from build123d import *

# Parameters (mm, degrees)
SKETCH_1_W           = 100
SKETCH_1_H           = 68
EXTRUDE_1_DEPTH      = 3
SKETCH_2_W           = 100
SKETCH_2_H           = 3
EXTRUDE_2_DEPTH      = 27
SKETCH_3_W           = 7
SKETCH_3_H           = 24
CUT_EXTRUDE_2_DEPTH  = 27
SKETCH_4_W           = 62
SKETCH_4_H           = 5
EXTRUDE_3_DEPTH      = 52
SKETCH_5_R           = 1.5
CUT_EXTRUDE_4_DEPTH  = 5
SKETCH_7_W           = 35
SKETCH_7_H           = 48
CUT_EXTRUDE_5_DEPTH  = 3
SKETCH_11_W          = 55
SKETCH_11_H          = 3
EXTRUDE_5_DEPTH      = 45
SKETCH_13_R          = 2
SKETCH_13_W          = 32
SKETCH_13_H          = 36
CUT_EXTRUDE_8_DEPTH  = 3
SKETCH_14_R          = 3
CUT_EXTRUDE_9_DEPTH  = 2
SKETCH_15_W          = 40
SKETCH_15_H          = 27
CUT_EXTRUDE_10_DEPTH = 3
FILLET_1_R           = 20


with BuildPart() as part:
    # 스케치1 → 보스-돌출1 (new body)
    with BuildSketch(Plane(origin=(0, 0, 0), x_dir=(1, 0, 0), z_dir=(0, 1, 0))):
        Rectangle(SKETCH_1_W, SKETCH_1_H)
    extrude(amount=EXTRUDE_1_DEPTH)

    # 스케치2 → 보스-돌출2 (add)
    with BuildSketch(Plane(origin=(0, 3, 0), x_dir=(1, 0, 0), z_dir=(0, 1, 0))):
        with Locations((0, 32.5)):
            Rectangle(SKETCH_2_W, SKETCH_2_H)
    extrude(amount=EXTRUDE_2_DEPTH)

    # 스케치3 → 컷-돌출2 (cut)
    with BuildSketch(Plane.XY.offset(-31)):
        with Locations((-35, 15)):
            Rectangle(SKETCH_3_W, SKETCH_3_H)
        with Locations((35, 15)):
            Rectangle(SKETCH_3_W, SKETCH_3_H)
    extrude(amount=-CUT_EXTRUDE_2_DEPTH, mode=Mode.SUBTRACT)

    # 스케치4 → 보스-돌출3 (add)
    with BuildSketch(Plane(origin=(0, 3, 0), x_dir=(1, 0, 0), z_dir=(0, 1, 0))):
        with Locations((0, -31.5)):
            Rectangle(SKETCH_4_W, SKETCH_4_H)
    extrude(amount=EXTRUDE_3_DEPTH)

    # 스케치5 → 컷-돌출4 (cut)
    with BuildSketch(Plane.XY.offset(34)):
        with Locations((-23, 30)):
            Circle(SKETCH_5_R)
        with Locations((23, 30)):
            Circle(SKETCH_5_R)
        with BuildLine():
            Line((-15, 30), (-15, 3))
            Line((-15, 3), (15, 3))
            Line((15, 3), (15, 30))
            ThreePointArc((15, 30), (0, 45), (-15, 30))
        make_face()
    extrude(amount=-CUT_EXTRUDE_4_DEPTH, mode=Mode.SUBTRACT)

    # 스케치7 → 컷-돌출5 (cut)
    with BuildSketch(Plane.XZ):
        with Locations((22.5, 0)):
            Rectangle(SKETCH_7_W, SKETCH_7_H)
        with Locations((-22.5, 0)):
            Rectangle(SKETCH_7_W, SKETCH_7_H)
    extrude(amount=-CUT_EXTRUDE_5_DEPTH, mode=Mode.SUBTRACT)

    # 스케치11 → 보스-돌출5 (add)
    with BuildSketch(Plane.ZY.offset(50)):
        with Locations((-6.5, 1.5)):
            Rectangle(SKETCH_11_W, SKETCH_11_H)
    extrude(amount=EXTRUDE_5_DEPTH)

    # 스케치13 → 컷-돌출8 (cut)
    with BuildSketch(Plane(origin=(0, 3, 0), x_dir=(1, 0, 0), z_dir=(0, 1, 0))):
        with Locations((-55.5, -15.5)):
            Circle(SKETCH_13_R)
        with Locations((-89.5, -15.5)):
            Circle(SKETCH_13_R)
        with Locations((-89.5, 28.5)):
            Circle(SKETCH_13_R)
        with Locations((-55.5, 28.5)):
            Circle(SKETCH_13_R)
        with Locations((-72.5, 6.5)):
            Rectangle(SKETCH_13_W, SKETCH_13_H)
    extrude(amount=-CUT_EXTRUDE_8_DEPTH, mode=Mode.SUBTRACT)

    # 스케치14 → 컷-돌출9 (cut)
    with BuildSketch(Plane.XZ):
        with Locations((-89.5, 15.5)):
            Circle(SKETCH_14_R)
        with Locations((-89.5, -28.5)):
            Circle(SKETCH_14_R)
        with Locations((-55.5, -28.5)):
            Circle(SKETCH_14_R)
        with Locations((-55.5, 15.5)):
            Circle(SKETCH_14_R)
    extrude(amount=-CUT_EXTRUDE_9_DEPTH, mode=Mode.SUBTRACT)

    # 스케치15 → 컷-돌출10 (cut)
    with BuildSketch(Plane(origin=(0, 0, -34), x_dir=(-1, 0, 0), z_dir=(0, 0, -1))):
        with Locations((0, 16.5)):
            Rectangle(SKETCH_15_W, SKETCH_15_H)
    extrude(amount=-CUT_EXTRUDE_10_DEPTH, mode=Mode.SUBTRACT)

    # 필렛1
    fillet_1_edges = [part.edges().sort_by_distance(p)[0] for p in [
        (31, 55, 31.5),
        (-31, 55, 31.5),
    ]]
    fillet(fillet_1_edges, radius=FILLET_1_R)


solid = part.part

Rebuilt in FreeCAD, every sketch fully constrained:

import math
import FreeCAD as App
import Part
import Sketcher


def edges_at(feature, points):
    """Names of the edges that pass closest to the given points."""
    edges = feature.Shape.Edges
    near = lambda p: min(range(len(edges)), key=lambda i: edges[i].distToShape(Part.Vertex(*p))[0])
    return sorted({f"Edge{near(p) + 1}" for p in points})


def add_polygon(sketch, points):
    """Adds a closed chain of lines whose ends are joined by coincident constraints."""
    first, n = sketch.GeometryCount, len(points)
    for a, b in zip(points, points[1:] + points[:1]):
        sketch.addGeometry(Part.LineSegment(App.Vector(*a, 0), App.Vector(*b, 0)), False)
    for i in range(n):
        sketch.addConstraint(Sketcher.Constraint("Coincident", first + i, 2, first + (i + 1) % n, 1))

doc = App.newDocument("Part")
body = doc.addObject("PartDesign::Body", "Body")

# Sketch on XZ plane
sketch1 = doc.addObject("Sketcher::SketchObject", "Sketch")
body.addObject(sketch1)
sketch1.AttachmentSupport = (doc.XZ_Plane, [""])
sketch1.MapMode = "FlatFace"
add_polygon(sketch1, [(-50, -34), (-50, 34), (50, 34), (50, -34)])  # lines 0-3
sketch1.addConstraint(Sketcher.Constraint("Vertical", 0))
sketch1.addConstraint(Sketcher.Constraint("Horizontal", 1))
sketch1.addConstraint(Sketcher.Constraint("Vertical", 2))
sketch1.addConstraint(Sketcher.Constraint("Horizontal", 3))
sketch1.addConstraint(Sketcher.Constraint("Symmetric", 0, 2, 2, 2, -1, 1))
sketch1.addConstraint(Sketcher.Constraint("DistanceX", 1, 1, 1, 2, 100.0))
sketch1.addConstraint(Sketcher.Constraint("DistanceY", 0, 1, 0, 2, 68.0))
pad1 = doc.addObject("PartDesign::Pad", "Pad")
body.addObject(pad1)
pad1.Profile = sketch1
pad1.Length = 3
pad1.Reversed = True

# Sketch on XZ plane
sketch2 = doc.addObject("Sketcher::SketchObject", "Sketch001")
body.addObject(sketch2)
sketch2.AttachmentSupport = (doc.XZ_Plane, [""])
sketch2.MapMode = "FlatFace"
sketch2.AttachmentOffset = App.Placement(App.Vector(0, 0, -3), App.Rotation())
add_polygon(sketch2, [(-50, -34), (-50, -31), (50, -31), (50, -34)])  # lines 0-3
sketch2.addConstraint(Sketcher.Constraint("Vertical", 0))
sketch2.addConstraint(Sketcher.Constraint("Horizontal", 1))
sketch2.addConstraint(Sketcher.Constraint("Vertical", 2))
sketch2.addConstraint(Sketcher.Constraint("Horizontal", 3))
sketch2.addConstraint(Sketcher.Constraint("DistanceX", 1, 1, 1, 2, 100.0))
sketch2.addConstraint(Sketcher.Constraint("DistanceY", 0, 1, 0, 2, 3.0))
sketch2.addConstraint(Sketcher.Constraint("DistanceX", 0, 2, -1, 1, 50.0))
sketch2.addConstraint(Sketcher.Constraint("DistanceY", 0, 2, -1, 1, 31.0))
pad2 = doc.addObject("PartDesign::Pad", "Pad001")
body.addObject(pad2)
pad2.Profile = sketch2
pad2.Length = 27
pad2.Reversed = True

# Sketch on XY plane
sketch3 = doc.addObject("Sketcher::SketchObject", "Sketch002")
body.addObject(sketch3)
sketch3.AttachmentSupport = (doc.XY_Plane, [""])
sketch3.MapMode = "FlatFace"
sketch3.AttachmentOffset = App.Placement(App.Vector(0, 0, -31), App.Rotation())
add_polygon(sketch3, [(-38, 27), (-38, 3), (-32, 3), (-32, 27)])  # lines 0-3
add_polygon(sketch3, [(32, 27), (32, 3), (38, 3), (38, 27)])  # lines 4-7
sketch3.addConstraint(Sketcher.Constraint("Vertical", 0))
sketch3.addConstraint(Sketcher.Constraint("Horizontal", 1))
sketch3.addConstraint(Sketcher.Constraint("Vertical", 2))
sketch3.addConstraint(Sketcher.Constraint("Horizontal", 3))
sketch3.addConstraint(Sketcher.Constraint("Vertical", 4))
sketch3.addConstraint(Sketcher.Constraint("Horizontal", 5))
sketch3.addConstraint(Sketcher.Constraint("Vertical", 6))
sketch3.addConstraint(Sketcher.Constraint("Horizontal", 7))
sketch3.addConstraint(Sketcher.Constraint("Symmetric", 1, 2, 4, 2, -2))
sketch3.addConstraint(Sketcher.Constraint("Symmetric", 3, 2, 6, 2, -2))
sketch3.addConstraint(Sketcher.Constraint("DistanceX", 1, 1, 1, 2, 7.0))
sketch3.addConstraint(Sketcher.Constraint("DistanceY", 0, 2, 0, 1, 24.0))
sketch3.addConstraint(Sketcher.Constraint("DistanceY", -1, 1, 0, 2, 3.0))
sketch3.addConstraint(Sketcher.Constraint("DistanceX", 1, 2, 4, 2, 63.0))
pocket1 = doc.addObject("PartDesign::Pocket", "Pocket")
body.addObject(pocket1)
pocket1.Profile = sketch3
pocket1.Length = 27

# Sketch on XZ plane
sketch4 = doc.addObject("Sketcher::SketchObject", "Sketch003")
body.addObject(sketch4)
sketch4.AttachmentSupport = (doc.XZ_Plane, [""])
sketch4.MapMode = "FlatFace"
sketch4.AttachmentOffset = App.Placement(App.Vector(0, 0, -3), App.Rotation())
add_polygon(sketch4, [(-31, 29), (-31, 34), (31, 34), (31, 29)])  # lines 0-3
sketch4.addConstraint(Sketcher.Constraint("Vertical", 0))
sketch4.addConstraint(Sketcher.Constraint("Horizontal", 1))
sketch4.addConstraint(Sketcher.Constraint("Vertical", 2))
sketch4.addConstraint(Sketcher.Constraint("Horizontal", 3))
sketch4.addConstraint(Sketcher.Constraint("DistanceX", 1, 1, 1, 2, 62.0))
sketch4.addConstraint(Sketcher.Constraint("DistanceY", 0, 1, 0, 2, 5.0))
sketch4.addConstraint(Sketcher.Constraint("DistanceX", 0, 2, -1, 1, 31.0))
sketch4.addConstraint(Sketcher.Constraint("DistanceY", -1, 1, 0, 2, 34.0))
pad3 = doc.addObject("PartDesign::Pad", "Pad002")
body.addObject(pad3)
pad3.Profile = sketch4
pad3.Length = 52
pad3.Reversed = True

# Sketch on XY plane
sketch5 = doc.addObject("Sketcher::SketchObject", "Sketch004")
body.addObject(sketch5)
sketch5.AttachmentSupport = (doc.XY_Plane, [""])
sketch5.MapMode = "FlatFace"
sketch5.AttachmentOffset = App.Placement(App.Vector(0, 0, 34), App.Rotation())
sketch5.addGeometry(Part.Circle(App.Vector(-23, 30, 0), App.Vector(0, 0, 1), 1.5), False)
sketch5.addGeometry(Part.Circle(App.Vector(23, 30, 0), App.Vector(0, 0, 1), 1.5), False)
sketch5.addGeometry(Part.LineSegment(App.Vector(-15, 30, 0), App.Vector(-15, 3, 0)), False)
sketch5.addGeometry(Part.LineSegment(App.Vector(-15, 3, 0), App.Vector(15, 3, 0)), False)
sketch5.addGeometry(Part.LineSegment(App.Vector(15, 3, 0), App.Vector(15, 30, 0)), False)
sketch5.addGeometry(Part.ArcOfCircle(Part.Circle(App.Vector(0, 30, 0), App.Vector(0, 0, 1), 15), math.radians(0), math.radians(180)), False)
sketch5.addConstraint(Sketcher.Constraint("Coincident", 2, 2, 3, 1))
sketch5.addConstraint(Sketcher.Constraint("Coincident", 3, 2, 4, 1))
sketch5.addConstraint(Sketcher.Constraint("Tangent", 4, 2, 5, 1))
sketch5.addConstraint(Sketcher.Constraint("Tangent", 5, 2, 2, 1))
sketch5.addConstraint(Sketcher.Constraint("Vertical", 2))
sketch5.addConstraint(Sketcher.Constraint("Horizontal", 3))
sketch5.addConstraint(Sketcher.Constraint("Vertical", 4))
sketch5.addConstraint(Sketcher.Constraint("Equal", 0, 1))
sketch5.addConstraint(Sketcher.Constraint("Symmetric", 0, 3, 1, 3, -2))
sketch5.addConstraint(Sketcher.Constraint("PointOnObject", 5, 3, -2))
sketch5.addConstraint(Sketcher.Constraint("Horizontal", 1, 3, 5, 3))
sketch5.addConstraint(Sketcher.Constraint("Diameter", 0, 3.0))
sketch5.addConstraint(Sketcher.Constraint("Radius", 5, 15.0))
sketch5.addConstraint(Sketcher.Constraint("DistanceY", 2, 2, 2, 1, 27.0))
sketch5.addConstraint(Sketcher.Constraint("DistanceX", 0, 3, -1, 1, 23.0))
sketch5.addConstraint(Sketcher.Constraint("DistanceY", -1, 1, 0, 3, 30.0))
pocket2 = doc.addObject("PartDesign::Pocket", "Pocket001")
body.addObject(pocket2)
pocket2.Profile = sketch5
pocket2.Length = 5

# Sketch on XZ plane
sketch6 = doc.addObject("Sketcher::SketchObject", "Sketch005")
body.addObject(sketch6)
sketch6.AttachmentSupport = (doc.XZ_Plane, [""])
sketch6.MapMode = "FlatFace"
add_polygon(sketch6, [(5, 24), (5, -24), (40, -24), (40, 24)])  # lines 0-3
add_polygon(sketch6, [(-40, 24), (-40, -24), (-5, -24), (-5, 24)])  # lines 4-7
sketch6.addConstraint(Sketcher.Constraint("Vertical", 0))
sketch6.addConstraint(Sketcher.Constraint("Horizontal", 1))
sketch6.addConstraint(Sketcher.Constraint("Vertical", 2))
sketch6.addConstraint(Sketcher.Constraint("Horizontal", 3))
sketch6.addConstraint(Sketcher.Constraint("Vertical", 4))
sketch6.addConstraint(Sketcher.Constraint("Horizontal", 5))
sketch6.addConstraint(Sketcher.Constraint("Vertical", 6))
sketch6.addConstraint(Sketcher.Constraint("Horizontal", 7))
sketch6.addConstraint(Sketcher.Constraint("Symmetric", 2, 2, 4, 2, -1, 1))
sketch6.addConstraint(Sketcher.Constraint("Symmetric", 0, 2, 6, 2, -1, 1))
sketch6.addConstraint(Sketcher.Constraint("Horizontal", 1, 2, 4, 2))
sketch6.addConstraint(Sketcher.Constraint("DistanceX", 1, 1, 1, 2, 35.0))
sketch6.addConstraint(Sketcher.Constraint("DistanceY", 0, 2, 0, 1, 48.0))
sketch6.addConstraint(Sketcher.Constraint("DistanceX", -1, 1, 0, 2, 5.0))
pocket3 = doc.addObject("PartDesign::Pocket", "Pocket002")
body.addObject(pocket3)
pocket3.Profile = sketch6
pocket3.Length = 3

# Sketch on YZ plane
sketch7 = doc.addObject("Sketcher::SketchObject", "Sketch006")
body.addObject(sketch7)
sketch7.AttachmentSupport = (doc.YZ_Plane, [""])
sketch7.MapMode = "FlatFace"
sketch7.AttachmentOffset = App.Placement(App.Vector(0, 0, -50), App.Rotation())
add_polygon(sketch7, [(3, -34), (0, -34), (0, 21), (3, 21)])  # lines 0-3
sketch7.addConstraint(Sketcher.Constraint("Horizontal", 0))
sketch7.addConstraint(Sketcher.Constraint("Vertical", 1))
sketch7.addConstraint(Sketcher.Constraint("Horizontal", 2))
sketch7.addConstraint(Sketcher.Constraint("Vertical", 3))
sketch7.addConstraint(Sketcher.Constraint("PointOnObject", 0, 2, -2))
sketch7.addConstraint(Sketcher.Constraint("DistanceX", 0, 2, 0, 1, 3.0))
sketch7.addConstraint(Sketcher.Constraint("DistanceY", 1, 1, 1, 2, 55.0))
sketch7.addConstraint(Sketcher.Constraint("DistanceY", 0, 2, -1, 1, 34.0))
pad4 = doc.addObject("PartDesign::Pad", "Pad003")
body.addObject(pad4)
pad4.Profile = sketch7
pad4.Length = 45
pad4.Reversed = True

# Sketch on XZ plane
sketch8 = doc.addObject("Sketcher::SketchObject", "Sketch007")
body.addObject(sketch8)
sketch8.AttachmentSupport = (doc.XZ_Plane, [""])
sketch8.MapMode = "FlatFace"
sketch8.AttachmentOffset = App.Placement(App.Vector(0, 0, -3), App.Rotation())
sketch8.addGeometry(Part.Circle(App.Vector(-55.5, 15.5, 0), App.Vector(0, 0, 1), 2), False)  # 0
sketch8.addGeometry(Part.Circle(App.Vector(-89.5, 15.5, 0), App.Vector(0, 0, 1), 2), False)  # 1
sketch8.addGeometry(Part.Circle(App.Vector(-89.5, -28.5, 0), App.Vector(0, 0, 1), 2), False)  # 2
sketch8.addGeometry(Part.Circle(App.Vector(-55.5, -28.5, 0), App.Vector(0, 0, 1), 2), False)  # 3
add_polygon(sketch8, [(-88.5, -24.5), (-88.5, 11.5), (-56.5, 11.5), (-56.5, -24.5)])  # lines 4-7
sketch8.addConstraint(Sketcher.Constraint("Vertical", 4))
sketch8.addConstraint(Sketcher.Constraint("Horizontal", 5))
sketch8.addConstraint(Sketcher.Constraint("Vertical", 6))
sketch8.addConstraint(Sketcher.Constraint("Horizontal", 7))
sketch8.addConstraint(Sketcher.Constraint("Equal", 0, 1))
sketch8.addConstraint(Sketcher.Constraint("Equal", 1, 2))
sketch8.addConstraint(Sketcher.Constraint("Equal", 2, 3))
sketch8.addConstraint(Sketcher.Constraint("Horizontal", 0, 3, 1, 3))
sketch8.addConstraint(Sketcher.Constraint("Horizontal", 2, 3, 3, 3))
sketch8.addConstraint(Sketcher.Constraint("Vertical", 1, 3, 2, 3))
sketch8.addConstraint(Sketcher.Constraint("Vertical", 0, 3, 3, 3))
sketch8.addConstraint(Sketcher.Constraint("Diameter", 0, 4.0))
sketch8.addConstraint(Sketcher.Constraint("DistanceX", 5, 1, 5, 2, 32.0))
sketch8.addConstraint(Sketcher.Constraint("DistanceY", 4, 1, 4, 2, 36.0))
sketch8.addConstraint(Sketcher.Constraint("DistanceX", 1, 3, 0, 3, 34.0))
sketch8.addConstraint(Sketcher.Constraint("DistanceY", 2, 3, 1, 3, 44.0))
sketch8.addConstraint(Sketcher.Constraint("DistanceX", 1, 3, 4, 2, 1.0))
sketch8.addConstraint(Sketcher.Constraint("DistanceY", 4, 2, 1, 3, 4.0))
sketch8.addConstraint(Sketcher.Constraint("DistanceX", 0, 3, -1, 1, 55.5))
sketch8.addConstraint(Sketcher.Constraint("DistanceY", -1, 1, 0, 3, 15.5))
pocket4 = doc.addObject("PartDesign::Pocket", "Pocket003")
body.addObject(pocket4)
pocket4.Profile = sketch8
pocket4.Length = 3
pocket4.Reversed = True

# Sketch on XZ plane
sketch9 = doc.addObject("Sketcher::SketchObject", "Sketch008")
body.addObject(sketch9)
sketch9.AttachmentSupport = (doc.XZ_Plane, [""])
sketch9.MapMode = "FlatFace"
sketch9.addGeometry(Part.Circle(App.Vector(-89.5, 15.5, 0), App.Vector(0, 0, 1), 3), False)
sketch9.addGeometry(Part.Circle(App.Vector(-89.5, -28.5, 0), App.Vector(0, 0, 1), 3), False)
sketch9.addGeometry(Part.Circle(App.Vector(-55.5, -28.5, 0), App.Vector(0, 0, 1), 3), False)
sketch9.addGeometry(Part.Circle(App.Vector(-55.5, 15.5, 0), App.Vector(0, 0, 1), 3), False)
sketch9.addConstraint(Sketcher.Constraint("Equal", 0, 1))
sketch9.addConstraint(Sketcher.Constraint("Equal", 1, 2))
sketch9.addConstraint(Sketcher.Constraint("Equal", 2, 3))
sketch9.addConstraint(Sketcher.Constraint("Horizontal", 1, 3, 2, 3))
sketch9.addConstraint(Sketcher.Constraint("Horizontal", 0, 3, 3, 3))
sketch9.addConstraint(Sketcher.Constraint("Vertical", 0, 3, 1, 3))
sketch9.addConstraint(Sketcher.Constraint("Vertical", 2, 3, 3, 3))
sketch9.addConstraint(Sketcher.Constraint("Diameter", 0, 6.0))
sketch9.addConstraint(Sketcher.Constraint("DistanceY", 1, 3, 0, 3, 44.0))
sketch9.addConstraint(Sketcher.Constraint("DistanceX", 1, 3, 2, 3, 34.0))
sketch9.addConstraint(Sketcher.Constraint("DistanceX", 0, 3, -1, 1, 89.5))
sketch9.addConstraint(Sketcher.Constraint("DistanceY", -1, 1, 0, 3, 15.5))
pocket5 = doc.addObject("PartDesign::Pocket", "Pocket004")
body.addObject(pocket5)
pocket5.Profile = sketch9
pocket5.Length = 2

# Sketch on XY plane
sketch10 = doc.addObject("Sketcher::SketchObject", "Sketch009")
body.addObject(sketch10)
sketch10.AttachmentSupport = (doc.XY_Plane, [""])
sketch10.MapMode = "FlatFace"
sketch10.AttachmentOffset = App.Placement(App.Vector(0, 0, -34), App.Rotation())
add_polygon(sketch10, [(20, 30), (20, 3), (-20, 3), (-20, 30)])  # lines 0-3
sketch10.addConstraint(Sketcher.Constraint("Vertical", 0))
sketch10.addConstraint(Sketcher.Constraint("Horizontal", 1))
sketch10.addConstraint(Sketcher.Constraint("Vertical", 2))
sketch10.addConstraint(Sketcher.Constraint("Horizontal", 3))
sketch10.addConstraint(Sketcher.Constraint("DistanceX", 1, 2, 1, 1, 40.0))
sketch10.addConstraint(Sketcher.Constraint("DistanceY", 0, 2, 0, 1, 27.0))
sketch10.addConstraint(Sketcher.Constraint("DistanceX", -1, 1, 0, 2, 20.0))
sketch10.addConstraint(Sketcher.Constraint("DistanceY", -1, 1, 0, 2, 3.0))
pocket6 = doc.addObject("PartDesign::Pocket", "Pocket005")
body.addObject(pocket6)
pocket6.Profile = sketch10
pocket6.Length = 3
pocket6.Reversed = True
doc.recompute()

fillet = doc.addObject("PartDesign::Fillet", "Fillet")
body.addObject(fillet)
fillet.Base = (pocket6, edges_at(pocket6, [(31, 55, 31.5), (-31, 55, 31.5)]))
fillet.Radius = 20

doc.recompute()
